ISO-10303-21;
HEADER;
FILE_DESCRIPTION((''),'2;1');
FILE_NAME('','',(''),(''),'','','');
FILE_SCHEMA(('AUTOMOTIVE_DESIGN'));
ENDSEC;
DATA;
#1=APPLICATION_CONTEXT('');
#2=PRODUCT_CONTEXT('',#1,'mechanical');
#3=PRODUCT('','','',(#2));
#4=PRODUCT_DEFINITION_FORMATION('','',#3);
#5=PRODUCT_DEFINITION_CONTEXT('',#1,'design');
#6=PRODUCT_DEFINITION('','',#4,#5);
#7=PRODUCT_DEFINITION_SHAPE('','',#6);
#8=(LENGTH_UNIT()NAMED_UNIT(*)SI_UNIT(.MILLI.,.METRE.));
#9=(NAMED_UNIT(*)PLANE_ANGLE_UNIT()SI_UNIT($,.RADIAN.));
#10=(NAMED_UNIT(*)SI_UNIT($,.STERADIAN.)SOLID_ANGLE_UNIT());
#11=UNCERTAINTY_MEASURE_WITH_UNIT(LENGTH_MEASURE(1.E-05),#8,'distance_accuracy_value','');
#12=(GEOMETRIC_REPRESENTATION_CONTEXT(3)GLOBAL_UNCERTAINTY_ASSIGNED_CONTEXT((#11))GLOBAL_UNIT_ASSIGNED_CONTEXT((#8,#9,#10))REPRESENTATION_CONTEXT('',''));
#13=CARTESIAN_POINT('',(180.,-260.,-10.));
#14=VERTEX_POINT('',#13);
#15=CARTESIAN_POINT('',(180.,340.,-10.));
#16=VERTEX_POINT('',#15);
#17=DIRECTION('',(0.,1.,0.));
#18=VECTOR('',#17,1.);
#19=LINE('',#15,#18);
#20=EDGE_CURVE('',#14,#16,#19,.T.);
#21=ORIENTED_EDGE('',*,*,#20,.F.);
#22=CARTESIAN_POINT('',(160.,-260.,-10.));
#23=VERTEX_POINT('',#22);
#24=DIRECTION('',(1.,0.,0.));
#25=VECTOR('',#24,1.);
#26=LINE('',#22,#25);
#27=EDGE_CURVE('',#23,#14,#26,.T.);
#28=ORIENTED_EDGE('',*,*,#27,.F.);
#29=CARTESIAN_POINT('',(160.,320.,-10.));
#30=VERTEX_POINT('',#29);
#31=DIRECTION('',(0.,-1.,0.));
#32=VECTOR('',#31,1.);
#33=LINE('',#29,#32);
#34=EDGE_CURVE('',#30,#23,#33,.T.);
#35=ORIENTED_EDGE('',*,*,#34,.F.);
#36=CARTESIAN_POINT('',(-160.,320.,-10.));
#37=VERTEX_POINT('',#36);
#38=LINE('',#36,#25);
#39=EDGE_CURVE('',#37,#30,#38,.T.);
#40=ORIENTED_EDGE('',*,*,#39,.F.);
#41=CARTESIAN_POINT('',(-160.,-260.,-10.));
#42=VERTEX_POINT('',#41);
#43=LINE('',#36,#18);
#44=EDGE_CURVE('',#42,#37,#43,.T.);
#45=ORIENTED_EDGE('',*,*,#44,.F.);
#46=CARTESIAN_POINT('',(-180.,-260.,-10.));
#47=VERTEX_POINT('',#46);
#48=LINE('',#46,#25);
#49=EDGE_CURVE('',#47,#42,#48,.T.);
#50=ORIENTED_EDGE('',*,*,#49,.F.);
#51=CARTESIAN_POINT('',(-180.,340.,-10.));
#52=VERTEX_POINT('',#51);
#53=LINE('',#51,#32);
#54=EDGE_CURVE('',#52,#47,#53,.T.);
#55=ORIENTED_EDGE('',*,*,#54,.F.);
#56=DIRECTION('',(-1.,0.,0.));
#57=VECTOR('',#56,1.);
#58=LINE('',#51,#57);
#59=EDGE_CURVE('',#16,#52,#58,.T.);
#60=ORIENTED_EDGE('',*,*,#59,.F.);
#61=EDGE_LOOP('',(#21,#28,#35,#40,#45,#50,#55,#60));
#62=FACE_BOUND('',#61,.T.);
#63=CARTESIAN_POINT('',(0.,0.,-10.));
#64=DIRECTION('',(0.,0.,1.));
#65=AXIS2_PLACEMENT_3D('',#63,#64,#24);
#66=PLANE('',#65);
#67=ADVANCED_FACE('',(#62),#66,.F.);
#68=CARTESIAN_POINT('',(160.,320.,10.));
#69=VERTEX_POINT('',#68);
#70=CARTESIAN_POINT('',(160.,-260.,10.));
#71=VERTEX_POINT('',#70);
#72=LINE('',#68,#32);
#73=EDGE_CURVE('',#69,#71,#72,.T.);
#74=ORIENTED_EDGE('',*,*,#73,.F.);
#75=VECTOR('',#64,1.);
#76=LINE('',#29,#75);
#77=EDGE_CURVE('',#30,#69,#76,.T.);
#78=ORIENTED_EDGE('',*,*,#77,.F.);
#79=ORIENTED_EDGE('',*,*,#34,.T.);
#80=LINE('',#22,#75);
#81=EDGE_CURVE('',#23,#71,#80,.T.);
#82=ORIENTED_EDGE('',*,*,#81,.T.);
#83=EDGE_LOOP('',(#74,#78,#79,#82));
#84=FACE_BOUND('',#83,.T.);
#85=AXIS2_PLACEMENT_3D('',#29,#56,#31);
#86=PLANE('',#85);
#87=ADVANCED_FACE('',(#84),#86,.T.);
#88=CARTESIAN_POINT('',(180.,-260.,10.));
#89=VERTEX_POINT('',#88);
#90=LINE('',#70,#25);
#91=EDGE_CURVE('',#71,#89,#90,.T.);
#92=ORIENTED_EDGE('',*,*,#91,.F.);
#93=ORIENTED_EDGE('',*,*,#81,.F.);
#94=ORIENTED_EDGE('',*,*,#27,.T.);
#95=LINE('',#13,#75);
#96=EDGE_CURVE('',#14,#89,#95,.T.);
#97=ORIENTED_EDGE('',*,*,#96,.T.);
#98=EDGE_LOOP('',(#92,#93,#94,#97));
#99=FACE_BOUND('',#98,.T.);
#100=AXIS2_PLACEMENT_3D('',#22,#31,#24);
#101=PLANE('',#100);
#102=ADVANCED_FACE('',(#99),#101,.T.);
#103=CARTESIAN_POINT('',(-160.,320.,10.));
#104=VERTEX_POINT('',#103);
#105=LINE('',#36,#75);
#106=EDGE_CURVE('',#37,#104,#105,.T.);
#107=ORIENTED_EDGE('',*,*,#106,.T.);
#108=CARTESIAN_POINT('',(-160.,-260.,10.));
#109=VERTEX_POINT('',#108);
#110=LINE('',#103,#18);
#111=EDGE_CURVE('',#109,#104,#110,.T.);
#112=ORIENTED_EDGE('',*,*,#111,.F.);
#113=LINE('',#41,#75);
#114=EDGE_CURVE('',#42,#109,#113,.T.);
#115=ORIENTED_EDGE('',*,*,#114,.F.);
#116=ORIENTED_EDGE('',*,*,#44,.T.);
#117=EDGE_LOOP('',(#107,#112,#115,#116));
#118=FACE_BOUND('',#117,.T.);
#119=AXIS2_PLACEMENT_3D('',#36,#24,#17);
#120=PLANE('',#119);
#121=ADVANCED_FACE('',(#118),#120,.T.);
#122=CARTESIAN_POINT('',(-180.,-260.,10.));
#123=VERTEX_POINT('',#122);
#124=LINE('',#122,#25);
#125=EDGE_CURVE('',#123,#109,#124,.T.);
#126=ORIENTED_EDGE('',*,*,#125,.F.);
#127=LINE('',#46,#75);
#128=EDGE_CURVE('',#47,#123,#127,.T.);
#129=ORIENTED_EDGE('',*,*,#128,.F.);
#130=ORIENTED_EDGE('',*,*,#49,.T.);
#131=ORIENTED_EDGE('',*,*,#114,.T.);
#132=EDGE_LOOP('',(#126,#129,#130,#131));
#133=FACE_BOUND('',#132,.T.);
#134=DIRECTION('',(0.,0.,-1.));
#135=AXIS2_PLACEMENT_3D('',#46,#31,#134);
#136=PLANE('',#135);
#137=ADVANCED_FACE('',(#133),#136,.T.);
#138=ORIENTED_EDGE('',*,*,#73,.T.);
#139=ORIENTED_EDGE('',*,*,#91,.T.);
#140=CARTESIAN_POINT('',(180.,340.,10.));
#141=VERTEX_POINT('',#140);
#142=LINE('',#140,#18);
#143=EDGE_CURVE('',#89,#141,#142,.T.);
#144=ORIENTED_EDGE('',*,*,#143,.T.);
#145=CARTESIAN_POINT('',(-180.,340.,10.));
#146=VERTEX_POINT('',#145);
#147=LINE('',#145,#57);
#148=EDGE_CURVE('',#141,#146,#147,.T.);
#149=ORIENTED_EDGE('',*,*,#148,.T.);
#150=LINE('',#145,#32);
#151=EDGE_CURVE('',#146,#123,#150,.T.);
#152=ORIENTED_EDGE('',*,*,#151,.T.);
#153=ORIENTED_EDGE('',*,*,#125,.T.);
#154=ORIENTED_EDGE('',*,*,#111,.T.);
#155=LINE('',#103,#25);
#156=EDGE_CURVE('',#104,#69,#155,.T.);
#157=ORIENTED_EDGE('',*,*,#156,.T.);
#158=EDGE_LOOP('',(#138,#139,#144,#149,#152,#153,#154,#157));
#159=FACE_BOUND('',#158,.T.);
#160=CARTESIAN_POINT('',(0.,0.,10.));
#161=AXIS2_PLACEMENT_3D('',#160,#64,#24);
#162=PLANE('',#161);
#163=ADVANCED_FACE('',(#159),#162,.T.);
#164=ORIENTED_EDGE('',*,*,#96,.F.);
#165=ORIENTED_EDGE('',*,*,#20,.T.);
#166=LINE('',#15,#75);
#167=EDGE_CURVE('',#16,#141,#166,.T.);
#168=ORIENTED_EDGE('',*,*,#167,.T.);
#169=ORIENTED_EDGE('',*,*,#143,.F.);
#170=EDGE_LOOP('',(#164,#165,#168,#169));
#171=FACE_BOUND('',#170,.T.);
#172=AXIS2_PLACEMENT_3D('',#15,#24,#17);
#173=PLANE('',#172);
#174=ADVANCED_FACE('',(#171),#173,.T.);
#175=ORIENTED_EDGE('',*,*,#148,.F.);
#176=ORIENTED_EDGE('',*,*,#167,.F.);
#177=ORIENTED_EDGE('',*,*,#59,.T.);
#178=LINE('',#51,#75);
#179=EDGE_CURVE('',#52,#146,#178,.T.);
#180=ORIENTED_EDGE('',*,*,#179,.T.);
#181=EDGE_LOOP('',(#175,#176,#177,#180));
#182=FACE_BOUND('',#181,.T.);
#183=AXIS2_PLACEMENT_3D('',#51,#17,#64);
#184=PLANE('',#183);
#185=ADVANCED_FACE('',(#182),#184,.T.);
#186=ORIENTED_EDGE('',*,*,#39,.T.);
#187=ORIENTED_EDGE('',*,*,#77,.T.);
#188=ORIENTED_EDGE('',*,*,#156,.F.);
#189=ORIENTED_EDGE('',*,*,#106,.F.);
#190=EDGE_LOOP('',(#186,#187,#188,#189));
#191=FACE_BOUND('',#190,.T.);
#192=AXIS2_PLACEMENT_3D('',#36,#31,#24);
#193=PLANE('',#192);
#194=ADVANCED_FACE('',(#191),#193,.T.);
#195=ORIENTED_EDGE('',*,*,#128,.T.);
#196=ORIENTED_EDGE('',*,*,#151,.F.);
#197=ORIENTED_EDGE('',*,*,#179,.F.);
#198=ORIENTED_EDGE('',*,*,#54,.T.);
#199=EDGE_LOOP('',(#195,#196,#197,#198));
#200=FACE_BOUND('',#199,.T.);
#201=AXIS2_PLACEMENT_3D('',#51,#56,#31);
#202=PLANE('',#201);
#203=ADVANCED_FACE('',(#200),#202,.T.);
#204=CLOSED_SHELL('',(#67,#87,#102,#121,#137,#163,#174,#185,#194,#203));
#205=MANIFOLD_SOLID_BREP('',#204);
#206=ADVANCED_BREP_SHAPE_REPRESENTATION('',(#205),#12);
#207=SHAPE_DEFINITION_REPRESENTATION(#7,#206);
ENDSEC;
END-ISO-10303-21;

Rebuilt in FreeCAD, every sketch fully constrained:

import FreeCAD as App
import Part
import Sketcher
from FreeCAD import Vector


def add_polygon(sketch, points):
    """Adds a closed chain of lines whose ends are joined by coincident constraints."""
    first, n = sketch.GeometryCount, len(points)
    for a, b in zip(points, points[1:] + points[:1]):
        sketch.addGeometry(Part.LineSegment(App.Vector(*a, 0), App.Vector(*b, 0)), False)
    for i in range(n):
        sketch.addConstraint(Sketcher.Constraint("Coincident", first + i, 2, first + (i + 1) % n, 1))

doc = App.newDocument("Part")
params = doc.addObject("Spreadsheet::Sheet", "Params")
for row, (alias, value) in enumerate([
    ("sketch1_width", "360 mm"),
    ("sketch1_width2", "20 mm"),
    ("sketch1_height", "600 mm"),
    ("sketch1_height2", "580 mm"),
    ("pad1_length", "20 mm"),
], start=1):
    params.set(f"A{row}", alias)
    params.set(f"B{row}", "=" + value)
    params.setAlias(f"B{row}", alias)

body = doc.addObject("PartDesign::Body", "Body")

sketch1 = body.newObject("Sketcher::SketchObject", "Sketch")
sketch1.AttachmentSupport = (doc.getObject("XY_Plane"), [""])
sketch1.MapMode = "FlatFace"
add_polygon(sketch1, [(180, 340), (-180, 340), (-180, -260), (-160, -260), (-160, 320), (160, 320), (160, -260), (180, -260)])
sketch1.addConstraint(Sketcher.Constraint("Horizontal", 0))
sketch1.addConstraint(Sketcher.Constraint("Vertical", 1))
sketch1.addConstraint(Sketcher.Constraint("Horizontal", 2))
sketch1.addConstraint(Sketcher.Constraint("Vertical", 3))
sketch1.addConstraint(Sketcher.Constraint("Horizontal", 4))
sketch1.addConstraint(Sketcher.Constraint("Vertical", 5))
sketch1.addConstraint(Sketcher.Constraint("Horizontal", 6))
sketch1.addConstraint(Sketcher.Constraint("Vertical", 7))
sketch1.addConstraint(Sketcher.Constraint("Symmetric", 2, 2, 5, 2, -2))
sketch1.addConstraint(Sketcher.Constraint("Equal", 2, 6))
sketch1.addConstraint(Sketcher.Constraint("DistanceX", 0, 2, 0, 1, 360.0))
sketch1.addConstraint(Sketcher.Constraint("DistanceX", 2, 1, 2, 2, 20.0))
sketch1.addConstraint(Sketcher.Constraint("DistanceY", 1, 2, 1, 1, 600.0))
sketch1.addConstraint(Sketcher.Constraint("DistanceY", 3, 1, 3, 2, 580.0))
sketch1.addConstraint(Sketcher.Constraint("DistanceY", -1, 1, 0, 2, 340.0))
sketch1.setExpression("Constraints[18]", "Params.sketch1_width")
sketch1.setExpression("Constraints[19]", "Params.sketch1_width2")
sketch1.setExpression("Constraints[20]", "Params.sketch1_height")
sketch1.setExpression("Constraints[21]", "Params.sketch1_height2")
pad1 = body.newObject("PartDesign::Pad", "Pad")
pad1.Profile = sketch1
pad1.setExpression("Length", "Params.pad1_length")
pad1.Midplane = True

doc.recompute()
